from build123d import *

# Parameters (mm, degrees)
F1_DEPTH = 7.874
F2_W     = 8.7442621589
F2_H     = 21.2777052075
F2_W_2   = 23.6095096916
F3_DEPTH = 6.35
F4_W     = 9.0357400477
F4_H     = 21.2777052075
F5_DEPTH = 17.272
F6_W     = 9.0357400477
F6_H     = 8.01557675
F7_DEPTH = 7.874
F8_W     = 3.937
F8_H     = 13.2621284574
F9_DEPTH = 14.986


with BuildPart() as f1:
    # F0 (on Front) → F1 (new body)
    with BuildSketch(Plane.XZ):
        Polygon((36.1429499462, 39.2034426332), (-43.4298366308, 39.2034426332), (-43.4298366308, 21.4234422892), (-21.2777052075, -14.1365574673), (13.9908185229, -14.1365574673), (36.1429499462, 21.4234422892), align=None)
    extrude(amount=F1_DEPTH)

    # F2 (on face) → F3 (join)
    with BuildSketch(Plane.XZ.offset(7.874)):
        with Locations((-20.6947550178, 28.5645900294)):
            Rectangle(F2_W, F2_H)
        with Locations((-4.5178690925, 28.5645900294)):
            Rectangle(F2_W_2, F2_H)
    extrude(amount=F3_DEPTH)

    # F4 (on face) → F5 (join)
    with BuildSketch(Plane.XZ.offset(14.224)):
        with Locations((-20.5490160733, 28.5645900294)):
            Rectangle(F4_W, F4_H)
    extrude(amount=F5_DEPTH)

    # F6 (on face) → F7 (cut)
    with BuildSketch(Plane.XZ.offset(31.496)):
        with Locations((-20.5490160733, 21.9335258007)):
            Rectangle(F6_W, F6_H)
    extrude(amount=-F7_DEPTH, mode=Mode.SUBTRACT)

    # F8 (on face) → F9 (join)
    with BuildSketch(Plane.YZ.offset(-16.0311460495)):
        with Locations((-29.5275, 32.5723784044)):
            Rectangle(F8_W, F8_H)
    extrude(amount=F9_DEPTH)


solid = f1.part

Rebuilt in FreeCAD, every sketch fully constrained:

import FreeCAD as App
import Part
import Sketcher
Q = App.Units.Quantity

doc = App.newDocument("Part")
body = doc.addObject("PartDesign::Body", "Body")

# Sketch on XZ plane
sketch1 = doc.addObject("Sketcher::SketchObject", "Sketch")
body.addObject(sketch1)
sketch1.AttachmentSupport = (doc.XZ_Plane, [""])
sketch1.MapMode = "FlatFace"
sketch1.addGeometry([
    Part.LineSegment(App.Vector(36, 39, 0), App.Vector(-43, 39, 0)),  # 0
    Part.LineSegment(App.Vector(-43, 39, 0), App.Vector(-43, 21, 0)),  # 1
    Part.LineSegment(App.Vector(-43, 21, 0), App.Vector(-21, -14, 0)),  # 2
    Part.LineSegment(App.Vector(-21, -14, 0), App.Vector(14, -14, 0)),  # 3
    Part.LineSegment(App.Vector(14, -14, 0), App.Vector(36, 21, 0)),  # 4
    Part.LineSegment(App.Vector(36, 21, 0), App.Vector(36, 39, 0)),  # 5
], False)
sketch1.addConstraint([
    Sketcher.Constraint("Coincident", 0, 2, 1, 1),
    Sketcher.Constraint("Coincident", 1, 2, 2, 1),
    Sketcher.Constraint("Coincident", 2, 2, 3, 1),
    Sketcher.Constraint("Coincident", 3, 2, 4, 1),
    Sketcher.Constraint("Coincident", 4, 2, 5, 1),
    Sketcher.Constraint("Coincident", 5, 2, 0, 1),
    Sketcher.Constraint("Horizontal", 0),
    Sketcher.Constraint("Vertical", 1),
    Sketcher.Constraint("Horizontal", 3),
    Sketcher.Constraint("Vertical", 5),
    Sketcher.Constraint("Horizontal", 1, 2, 4, 2),
    Sketcher.Constraint("Equal", 2, 4),
    Sketcher.Constraint("DistanceY", 1, 2, 1, 1, Q("0.7 in")),
    Sketcher.Constraint("DistanceY", 2, 2, 1, 2, Q("1.4 in")),
    Sketcher.Constraint("Distance", 2, 41.895471),
    Sketcher.Constraint("DistanceX", 0, 2, 0, 1, 79.572787),
    Sketcher.Constraint("DistanceX", -1, 1, 3, 2, 13.990819),
    Sketcher.Constraint("DistanceY", -1, 1, 0, 2, 39.203443),
])
pad1 = doc.addObject("PartDesign::Pad", "Pad")
body.addObject(pad1)
pad1.Profile = sketch1
pad1.Length = Q("0.31 in")

# Sketch on XZ plane
sketch2 = doc.addObject("Sketcher::SketchObject", "Sketch001")
body.addObject(sketch2)
sketch2.AttachmentSupport = (doc.XZ_Plane, [""])
sketch2.MapMode = "FlatFace"
sketch2.AttachmentOffset = App.Placement(App.Vector(0, 0, 0.31 * 25.4), App.Rotation())
sketch2.addGeometry([
    Part.LineSegment(App.Vector(-25, 39, 0), App.Vector(-25, 18, 0)),
    Part.LineSegment(App.Vector(-25, 18, 0), App.Vector(7, 18, 0)),
    Part.LineSegment(App.Vector(7, 18, 0), App.Vector(7, 39, 0)),
    Part.LineSegment(App.Vector(7, 39, 0), App.Vector(-25, 39, 0)),
], False)
sketch2.addConstraint([
    Sketcher.Constraint("Coincident", 0, 2, 1, 1),
    Sketcher.Constraint("Coincident", 1, 2, 2, 1),
    Sketcher.Constraint("Coincident", 2, 2, 3, 1),
    Sketcher.Constraint("Coincident", 3, 2, 0, 1),
    Sketcher.Constraint("Vertical", 0),
    Sketcher.Constraint("Horizontal", 1),
    Sketcher.Constraint("Vertical", 2),
    Sketcher.Constraint("Horizontal", 3),
    Sketcher.Constraint("DistanceX", 1, 1, 1, 2, 32.353772),
    Sketcher.Constraint("DistanceY", 0, 2, 0, 1, 21.277705),
    Sketcher.Constraint("DistanceX", 0, 2, -1, 1, 25.066886),
    Sketcher.Constraint("DistanceY", -1, 1, 0, 2, 17.925737),
])
pad2 = doc.addObject("PartDesign::Pad", "Pad001")
body.addObject(pad2)
pad2.Profile = sketch2
pad2.Length = Q("0.25 in")

# Sketch on XZ plane
sketch3 = doc.addObject("Sketcher::SketchObject", "Sketch002")
body.addObject(sketch3)
sketch3.AttachmentSupport = (doc.XZ_Plane, [""])
sketch3.MapMode = "FlatFace"
sketch3.AttachmentOffset = App.Placement(App.Vector(0, 0, 0.56 * 25.4), App.Rotation())
sketch3.addGeometry([
    Part.LineSegment(App.Vector(-25, 39, 0), App.Vector(-25, 18, 0)),
    Part.LineSegment(App.Vector(-25, 18, 0), App.Vector(-16, 18, 0)),
    Part.LineSegment(App.Vector(-16, 18, 0), App.Vector(-16, 39, 0)),
    Part.LineSegment(App.Vector(-16, 39, 0), App.Vector(-25, 39, 0)),
], False)
sketch3.addConstraint([
    Sketcher.Constraint("Coincident", 0, 2, 1, 1),
    Sketcher.Constraint("Coincident", 1, 2, 2, 1),
    Sketcher.Constraint("Coincident", 2, 2, 3, 1),
    Sketcher.Constraint("Coincident", 3, 2, 0, 1),
    Sketcher.Constraint("Vertical", 0),
    Sketcher.Constraint("Horizontal", 1),
    Sketcher.Constraint("Vertical", 2),
    Sketcher.Constraint("Horizontal", 3),
    Sketcher.Constraint("DistanceX", 1, 1, 1, 2, 9.03574),
    Sketcher.Constraint("DistanceY", 0, 2, 0, 1, 21.277705),
    Sketcher.Constraint("DistanceX", 0, 2, -1, 1, 25.066886),
    Sketcher.Constraint("DistanceY", -1, 1, 0, 2, 17.925737),
])
pad3 = doc.addObject("PartDesign::Pad", "Pad002")
body.addObject(pad3)
pad3.Profile = sketch3
pad3.Length = Q("0.68 in")

# Sketch on XZ plane
sketch4 = doc.addObject("Sketcher::SketchObject", "Sketch003")
body.addObject(sketch4)
sketch4.AttachmentSupport = (doc.XZ_Plane, [""])
sketch4.MapMode = "FlatFace"
sketch4.AttachmentOffset = App.Placement(App.Vector(0, 0, 1.24 * 25.4), App.Rotation())
sketch4.addGeometry([
    Part.LineSegment(App.Vector(-25, 26, 0), App.Vector(-25, 18, 0)),
    Part.LineSegment(App.Vector(-25, 18, 0), App.Vector(-16, 18, 0)),
    Part.LineSegment(App.Vector(-16, 18, 0), App.Vector(-16, 26, 0)),
    Part.LineSegment(App.Vector(-16, 26, 0), App.Vector(-25, 26, 0)),
], False)
sketch4.addConstraint([
    Sketcher.Constraint("Coincident", 0, 2, 1, 1),
    Sketcher.Constraint("Coincident", 1, 2, 2, 1),
    Sketcher.Constraint("Coincident", 2, 2, 3, 1),
    Sketcher.Constraint("Coincident", 3, 2, 0, 1),
    Sketcher.Constraint("Vertical", 0),
    Sketcher.Constraint("Horizontal", 1),
    Sketcher.Constraint("Vertical", 2),
    Sketcher.Constraint("Horizontal", 3),
    Sketcher.Constraint("DistanceX", 1, 1, 1, 2, 9.03574),
    Sketcher.Constraint("DistanceY", 0, 2, 0, 1, 8.015577),
    Sketcher.Constraint("DistanceX", 0, 2, -1, 1, 25.066886),
    Sketcher.Constraint("DistanceY", -1, 1, 0, 2, 17.925737),
])
pocket1 = doc.addObject("PartDesign::Pocket", "Pocket")
body.addObject(pocket1)
pocket1.Profile = sketch4
pocket1.Length = Q("0.31 in")

# Sketch on YZ plane
sketch5 = doc.addObject("Sketcher::SketchObject", "Sketch004")
body.addObject(sketch5)
sketch5.AttachmentSupport = (doc.YZ_Plane, [""])
sketch5.MapMode = "FlatFace"
sketch5.AttachmentOffset = App.Placement(App.Vector(0, 0, -16.031146), App.Rotation())
sketch5.addGeometry([
    Part.LineSegment(App.Vector(-31.5, 39.2, 0), App.Vector(-31.5, 25.9, 0)),
    Part.LineSegment(App.Vector(-31.5, 25.9, 0), App.Vector(-27.6, 25.9, 0)),
    Part.LineSegment(App.Vector(-27.6, 25.9, 0), App.Vector(-27.6, 39.2, 0)),
    Part.LineSegment(App.Vector(-27.6, 39.2, 0), App.Vector(-31.5, 39.2, 0)),
], False)
sketch5.addConstraint([
    Sketcher.Constraint("Coincident", 0, 2, 1, 1),
    Sketcher.Constraint("Coincident", 1, 2, 2, 1),
    Sketcher.Constraint("Coincident", 2, 2, 3, 1),
    Sketcher.Constraint("Coincident", 3, 2, 0, 1),
    Sketcher.Constraint("Vertical", 0),
    Sketcher.Constraint("Horizontal", 1),
    Sketcher.Constraint("Vertical", 2),
    Sketcher.Constraint("Horizontal", 3),
    Sketcher.Constraint("DistanceX", 1, 1, 1, 2, Q("0.155 in")),
    Sketcher.Constraint("DistanceX", 0, 2, -1, 1, Q("1.24 in")),
    Sketcher.Constraint("DistanceY", 0, 2, 0, 1, 13.262128),
    Sketcher.Constraint("DistanceY", -1, 1, 0, 2, 25.941314),
])
pad4 = doc.addObject("PartDesign::Pad", "Pad003")
body.addObject(pad4)
pad4.Profile = sketch5
pad4.Length = Q("0.59 in")

doc.recompute()
